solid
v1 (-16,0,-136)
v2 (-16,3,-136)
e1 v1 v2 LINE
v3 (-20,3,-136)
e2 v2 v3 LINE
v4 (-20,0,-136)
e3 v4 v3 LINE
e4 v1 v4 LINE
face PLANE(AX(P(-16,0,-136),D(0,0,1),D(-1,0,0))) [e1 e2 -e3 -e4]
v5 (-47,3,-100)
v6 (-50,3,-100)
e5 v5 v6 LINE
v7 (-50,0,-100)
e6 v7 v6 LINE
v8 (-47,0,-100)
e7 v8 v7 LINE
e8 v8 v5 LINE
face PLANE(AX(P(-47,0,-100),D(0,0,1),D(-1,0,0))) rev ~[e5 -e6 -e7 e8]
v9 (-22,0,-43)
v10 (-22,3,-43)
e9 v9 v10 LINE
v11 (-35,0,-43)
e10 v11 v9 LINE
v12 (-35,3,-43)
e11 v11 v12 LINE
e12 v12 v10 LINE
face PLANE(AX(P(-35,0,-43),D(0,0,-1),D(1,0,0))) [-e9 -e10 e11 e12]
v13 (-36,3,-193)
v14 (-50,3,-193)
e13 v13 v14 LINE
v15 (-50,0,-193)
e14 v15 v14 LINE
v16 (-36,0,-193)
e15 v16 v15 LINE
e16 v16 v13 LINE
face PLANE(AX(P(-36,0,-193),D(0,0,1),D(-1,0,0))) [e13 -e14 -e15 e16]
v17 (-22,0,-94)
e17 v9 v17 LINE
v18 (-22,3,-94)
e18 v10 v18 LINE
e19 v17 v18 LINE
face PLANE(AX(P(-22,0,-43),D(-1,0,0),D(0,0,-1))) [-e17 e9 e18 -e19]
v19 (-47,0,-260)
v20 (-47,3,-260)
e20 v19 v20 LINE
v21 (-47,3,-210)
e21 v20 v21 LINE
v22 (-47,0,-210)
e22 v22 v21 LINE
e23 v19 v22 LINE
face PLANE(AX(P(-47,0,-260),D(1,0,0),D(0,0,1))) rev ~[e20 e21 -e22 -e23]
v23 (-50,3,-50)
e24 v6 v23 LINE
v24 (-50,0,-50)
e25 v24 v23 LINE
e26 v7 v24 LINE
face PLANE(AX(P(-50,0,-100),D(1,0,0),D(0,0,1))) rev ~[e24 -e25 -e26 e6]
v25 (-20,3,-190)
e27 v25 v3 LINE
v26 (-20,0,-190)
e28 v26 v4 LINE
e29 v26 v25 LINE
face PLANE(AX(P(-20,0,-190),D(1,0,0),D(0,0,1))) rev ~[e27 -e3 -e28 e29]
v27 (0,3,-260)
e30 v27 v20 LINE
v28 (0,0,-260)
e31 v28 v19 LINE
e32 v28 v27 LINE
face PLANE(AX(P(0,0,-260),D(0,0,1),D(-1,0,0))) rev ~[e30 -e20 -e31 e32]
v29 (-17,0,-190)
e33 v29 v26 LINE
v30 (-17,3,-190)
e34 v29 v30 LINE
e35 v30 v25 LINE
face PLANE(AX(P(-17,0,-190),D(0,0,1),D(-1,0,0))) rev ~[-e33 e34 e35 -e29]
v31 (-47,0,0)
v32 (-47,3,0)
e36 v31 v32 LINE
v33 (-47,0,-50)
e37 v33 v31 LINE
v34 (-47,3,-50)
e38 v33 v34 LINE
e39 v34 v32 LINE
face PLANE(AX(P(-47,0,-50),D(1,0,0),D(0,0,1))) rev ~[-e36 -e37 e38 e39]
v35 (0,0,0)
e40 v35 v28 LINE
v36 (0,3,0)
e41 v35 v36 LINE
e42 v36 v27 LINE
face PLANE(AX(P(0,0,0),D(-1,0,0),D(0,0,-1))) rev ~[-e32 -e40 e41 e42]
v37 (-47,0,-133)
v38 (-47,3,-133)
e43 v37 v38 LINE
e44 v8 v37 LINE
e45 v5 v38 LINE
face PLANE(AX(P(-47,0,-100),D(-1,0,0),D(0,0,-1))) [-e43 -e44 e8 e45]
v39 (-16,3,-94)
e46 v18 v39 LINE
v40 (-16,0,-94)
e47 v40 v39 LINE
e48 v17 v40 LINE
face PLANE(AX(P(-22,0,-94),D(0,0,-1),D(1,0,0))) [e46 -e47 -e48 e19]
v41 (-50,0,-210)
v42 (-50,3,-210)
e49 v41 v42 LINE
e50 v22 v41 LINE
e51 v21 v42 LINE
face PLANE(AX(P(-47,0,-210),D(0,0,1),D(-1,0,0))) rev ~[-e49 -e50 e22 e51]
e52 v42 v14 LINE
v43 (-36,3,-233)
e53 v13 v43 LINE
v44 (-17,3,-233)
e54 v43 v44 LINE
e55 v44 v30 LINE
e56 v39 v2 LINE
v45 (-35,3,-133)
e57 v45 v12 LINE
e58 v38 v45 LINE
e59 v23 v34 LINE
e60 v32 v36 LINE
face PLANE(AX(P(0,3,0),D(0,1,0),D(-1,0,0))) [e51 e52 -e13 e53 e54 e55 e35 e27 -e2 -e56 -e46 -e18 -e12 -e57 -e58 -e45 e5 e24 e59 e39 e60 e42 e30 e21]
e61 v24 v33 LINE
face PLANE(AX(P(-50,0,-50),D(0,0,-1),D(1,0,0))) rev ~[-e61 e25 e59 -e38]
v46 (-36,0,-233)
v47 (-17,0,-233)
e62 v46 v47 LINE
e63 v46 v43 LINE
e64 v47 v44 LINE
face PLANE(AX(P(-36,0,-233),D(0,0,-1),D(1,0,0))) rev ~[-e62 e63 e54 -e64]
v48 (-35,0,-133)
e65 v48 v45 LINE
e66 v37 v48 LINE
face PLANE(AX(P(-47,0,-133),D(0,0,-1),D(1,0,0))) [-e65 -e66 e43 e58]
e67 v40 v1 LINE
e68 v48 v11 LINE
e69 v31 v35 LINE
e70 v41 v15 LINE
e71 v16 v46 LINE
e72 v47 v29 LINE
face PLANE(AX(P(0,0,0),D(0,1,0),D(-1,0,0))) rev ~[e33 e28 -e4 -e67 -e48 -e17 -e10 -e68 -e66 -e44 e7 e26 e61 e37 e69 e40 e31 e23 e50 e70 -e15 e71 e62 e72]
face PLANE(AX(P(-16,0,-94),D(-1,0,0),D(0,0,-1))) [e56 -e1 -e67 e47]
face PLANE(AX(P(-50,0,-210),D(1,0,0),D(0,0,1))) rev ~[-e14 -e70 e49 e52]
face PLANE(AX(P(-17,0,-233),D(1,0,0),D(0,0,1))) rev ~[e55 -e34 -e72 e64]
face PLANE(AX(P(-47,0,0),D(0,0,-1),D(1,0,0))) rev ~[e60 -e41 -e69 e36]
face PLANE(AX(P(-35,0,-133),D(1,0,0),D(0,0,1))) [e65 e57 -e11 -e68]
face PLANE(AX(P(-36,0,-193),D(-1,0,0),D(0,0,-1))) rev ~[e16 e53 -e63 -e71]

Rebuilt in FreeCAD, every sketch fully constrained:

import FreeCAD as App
import Part
import Sketcher
from FreeCAD import Vector
Q = App.Units.Quantity

doc = App.newDocument("Part")
body = doc.addObject("PartDesign::Body", "Body")

# Sketch on XZ plane
sketch1 = body.newObject("Sketcher::SketchObject", "Sketch")
sketch1.AttachmentSupport = (doc.getObject("XZ_Plane"), [""])
sketch1.MapMode = "FlatFace"
sketch1.addGeometry(Part.LineSegment(Vector(-47, 0, 0), Vector(0, 0, 0)), False)
sketch1.addGeometry(Part.LineSegment(Vector(0, 0, 0), Vector(0, -260, 0)), False)
sketch1.addGeometry(Part.LineSegment(Vector(0, -260, 0), Vector(-47, -260, 0)), False)
sketch1.addGeometry(Part.LineSegment(Vector(-47, -260, 0), Vector(-47, -210, 0)), False)
sketch1.addGeometry(Part.LineSegment(Vector(-47, -210, 0), Vector(-50, -210, 0)), False)
sketch1.addGeometry(Part.LineSegment(Vector(-50, -210, 0), Vector(-50, -193, 0)), False)
sketch1.addGeometry(Part.LineSegment(Vector(-50, -193, 0), Vector(-36, -193, 0)), False)
sketch1.addGeometry(Part.LineSegment(Vector(-36, -193, 0), Vector(-36, -233, 0)), False)
sketch1.addGeometry(Part.LineSegment(Vector(-36, -233, 0), Vector(-17, -233, 0)), False)
sketch1.addGeometry(Part.LineSegment(Vector(-17, -233, 0), Vector(-17, -190, 0)), False)
sketch1.addGeometry(Part.LineSegment(Vector(-17, -190, 0), Vector(-20, -190, 0)), False)
sketch1.addGeometry(Part.LineSegment(Vector(-20, -190, 0), Vector(-20, -136, 0)), False)
sketch1.addGeometry(Part.LineSegment(Vector(-20, -136, 0), Vector(-16, -136, 0)), False)
sketch1.addGeometry(Part.LineSegment(Vector(-16, -136, 0), Vector(-16, -94, 0)), False)
sketch1.addGeometry(Part.LineSegment(Vector(-16, -94, 0), Vector(-22, -94, 0)), False)
sketch1.addGeometry(Part.LineSegment(Vector(-22, -94, 0), Vector(-22, -43, 0)), False)
sketch1.addGeometry(Part.LineSegment(Vector(-22, -43, 0), Vector(-35, -43, 0)), False)
sketch1.addGeometry(Part.LineSegment(Vector(-35, -43, 0), Vector(-35, -133, 0)), False)
sketch1.addGeometry(Part.LineSegment(Vector(-35, -133, 0), Vector(-47, -133, 0)), False)
sketch1.addGeometry(Part.LineSegment(Vector(-47, -133, 0), Vector(-47, -100, 0)), False)
sketch1.addGeometry(Part.LineSegment(Vector(-47, -100, 0), Vector(-50, -100, 0)), False)
sketch1.addGeometry(Part.LineSegment(Vector(-50, -100, 0), Vector(-50, -50, 0)), False)
sketch1.addGeometry(Part.LineSegment(Vector(-50, -50, 0), Vector(-47, -50, 0)), False)
sketch1.addGeometry(Part.LineSegment(Vector(-47, -50, 0), Vector(-47, 0, 0)), False)
sketch1.addConstraint(Sketcher.Constraint("Coincident", 0, 2, 1, 1))
sketch1.addConstraint(Sketcher.Constraint("Coincident", 1, 2, 2, 1))
sketch1.addConstraint(Sketcher.Constraint("Coincident", 2, 2, 3, 1))
sketch1.addConstraint(Sketcher.Constraint("Coincident", 3, 2, 4, 1))
sketch1.addConstraint(Sketcher.Constraint("Coincident", 4, 2, 5, 1))
sketch1.addConstraint(Sketcher.Constraint("Coincident", 5, 2, 6, 1))
sketch1.addConstraint(Sketcher.Constraint("Coincident", 6, 2, 7, 1))
sketch1.addConstraint(Sketcher.Constraint("Coincident", 7, 2, 8, 1))
sketch1.addConstraint(Sketcher.Constraint("Coincident", 8, 2, 9, 1))
sketch1.addConstraint(Sketcher.Constraint("Coincident", 9, 2, 10, 1))
sketch1.addConstraint(Sketcher.Constraint("Coincident", 10, 2, 11, 1))
sketch1.addConstraint(Sketcher.Constraint("Coincident", 11, 2, 12, 1))
sketch1.addConstraint(Sketcher.Constraint("Coincident", 12, 2, 13, 1))
sketch1.addConstraint(Sketcher.Constraint("Coincident", 13, 2, 14, 1))
sketch1.addConstraint(Sketcher.Constraint("Coincident", 14, 2, 15, 1))
sketch1.addConstraint(Sketcher.Constraint("Coincident", 15, 2, 16, 1))
sketch1.addConstraint(Sketcher.Constraint("Coincident", 16, 2, 17, 1))
sketch1.addConstraint(Sketcher.Constraint("Coincident", 17, 2, 18, 1))
sketch1.addConstraint(Sketcher.Constraint("Coincident", 18, 2, 19, 1))
sketch1.addConstraint(Sketcher.Constraint("Coincident", 19, 2, 20, 1))
sketch1.addConstraint(Sketcher.Constraint("Coincident", 20, 2, 21, 1))
sketch1.addConstraint(Sketcher.Constraint("Coincident", 21, 2, 22, 1))
sketch1.addConstraint(Sketcher.Constraint("Coincident", 22, 2, 23, 1))
sketch1.addConstraint(Sketcher.Constraint("Coincident", 23, 2, 0, 1))
sketch1.addConstraint(Sketcher.Constraint("Horizontal", 0))
sketch1.addConstraint(Sketcher.Constraint("Vertical", 1))
sketch1.addConstraint(Sketcher.Constraint("Horizontal", 2))
sketch1.addConstraint(Sketcher.Constraint("Vertical", 3))
sketch1.addConstraint(Sketcher.Constraint("Horizontal", 4))
sketch1.addConstraint(Sketcher.Constraint("Vertical", 5))
sketch1.addConstraint(Sketcher.Constraint("Horizontal", 6))
sketch1.addConstraint(Sketcher.Constraint("Vertical", 7))
sketch1.addConstraint(Sketcher.Constraint("Horizontal", 8))
sketch1.addConstraint(Sketcher.Constraint("Vertical", 9))
sketch1.addConstraint(Sketcher.Constraint("Horizontal", 10))
sketch1.addConstraint(Sketcher.Constraint("Vertical", 11))
sketch1.addConstraint(Sketcher.Constraint("Horizontal", 12))
sketch1.addConstraint(Sketcher.Constraint("Vertical", 13))
sketch1.addConstraint(Sketcher.Constraint("Horizontal", 14))
sketch1.addConstraint(Sketcher.Constraint("Vertical", 15))
sketch1.addConstraint(Sketcher.Constraint("Horizontal", 16))
sketch1.addConstraint(Sketcher.Constraint("Vertical", 17))
sketch1.addConstraint(Sketcher.Constraint("Horizontal", 18))
sketch1.addConstraint(Sketcher.Constraint("Vertical", 19))
sketch1.addConstraint(Sketcher.Constraint("Horizontal", 20))
sketch1.addConstraint(Sketcher.Constraint("Vertical", 21))
sketch1.addConstraint(Sketcher.Constraint("Horizontal", 22))
sketch1.addConstraint(Sketcher.Constraint("Vertical", 23))
sketch1.addConstraint(Sketcher.Constraint("Coincident", 0, 2, -1, 1))
sketch1.addConstraint(Sketcher.Constraint("Vertical", 3, 2, 18, 2))
sketch1.addConstraint(Sketcher.Constraint("Vertical", 5, 2, 20, 2))
sketch1.addConstraint(Sketcher.Constraint("Vertical", 19, 2, 22, 2))
sketch1.addConstraint(Sketcher.Constraint("Equal", 4, 10))
sketch1.addConstraint(Sketcher.Constraint("Equal", 3, 21))
sketch1.addConstraint(Sketcher.Constraint("Equal", 21, 23))
sketch1.addConstraint(Sketcher.Constraint("DistanceX", 0, 1, 0, 2, Q("47 mm")))
sketch1.addConstraint(Sketcher.Constraint("DistanceX", 4, 2, 4, 1, Q("3 mm")))
sketch1.addConstraint(Sketcher.Constraint("DistanceX", 8, 1, 8, 2, Q("19 mm")))
sketch1.addConstraint(Sketcher.Constraint("DistanceX", 14, 2, 14, 1, Q("6 mm")))
sketch1.addConstraint(Sketcher.Constraint("DistanceX", 16, 2, 16, 1, Q("13 mm")))
sketch1.addConstraint(Sketcher.Constraint("DistanceX", 18, 2, 18, 1, Q("12 mm")))
sketch1.addConstraint(Sketcher.Constraint("DistanceY", 1, 2, 1, 1, Q("260 mm")))
sketch1.addConstraint(Sketcher.Constraint("DistanceY", 3, 1, 3, 2, Q("50 mm")))
sketch1.addConstraint(Sketcher.Constraint("DistanceY", 13, 1, 13, 2, Q("42 mm")))
sketch1.addConstraint(Sketcher.Constraint("DistanceY", 15, 1, 15, 2, Q("51 mm")))
sketch1.addConstraint(Sketcher.Constraint("DistanceY", 17, 2, 17, 1, Q("90 mm")))
sketch1.addConstraint(Sketcher.Constraint("DistanceY", 2, 2, 5, 2, Q("67 mm")))
sketch1.addConstraint(Sketcher.Constraint("DistanceX", 3, 2, 6, 2, Q("11 mm")))
sketch1.addConstraint(Sketcher.Constraint("DistanceY", 6, 2, 9, 2, Q("3 mm")))
sketch1.addConstraint(Sketcher.Constraint("DistanceY", 19, 2, 14, 2, Q("6 mm")))
sketch1.addConstraint(Sketcher.Constraint("DistanceY", 7, 2, 7, 1, Q("40 mm")))
pad1 = body.newObject("PartDesign::Pad", "Pad")
pad1.Profile = sketch1
pad1.Length = 3
pad1.Reversed = True

doc.recompute()
